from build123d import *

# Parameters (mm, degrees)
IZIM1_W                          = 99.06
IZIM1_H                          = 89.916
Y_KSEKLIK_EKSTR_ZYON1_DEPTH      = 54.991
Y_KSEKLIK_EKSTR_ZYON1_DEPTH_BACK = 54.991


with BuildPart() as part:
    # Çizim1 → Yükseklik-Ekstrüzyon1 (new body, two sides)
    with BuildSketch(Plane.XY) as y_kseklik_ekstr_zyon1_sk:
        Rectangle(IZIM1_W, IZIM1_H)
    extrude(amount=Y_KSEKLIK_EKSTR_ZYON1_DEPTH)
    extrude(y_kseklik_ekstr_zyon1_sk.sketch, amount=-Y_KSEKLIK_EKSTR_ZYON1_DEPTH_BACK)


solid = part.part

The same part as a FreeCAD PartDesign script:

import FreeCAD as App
import Part
import Sketcher
from FreeCAD import Vector
Q = App.Units.Quantity


def add_polygon(sketch, points):
    """Adds a closed chain of lines whose ends are joined by coincident constraints."""
    first, n = sketch.GeometryCount, len(points)
    for a, b in zip(points, points[1:] + points[:1]):
        sketch.addGeometry(Part.LineSegment(App.Vector(*a, 0), App.Vector(*b, 0)), False)
    for i in range(n):
        sketch.addConstraint(Sketcher.Constraint("Coincident", first + i, 2, first + (i + 1) % n, 1))

doc = App.newDocument("Part")
body = doc.addObject("PartDesign::Body", "Body")

sketch1 = doc.addObject("Sketcher::SketchObject", "Sketch")
body.addObject(sketch1)
sketch1.AttachmentSupport = (doc.XY_Plane, [""])
sketch1.MapMode = "FlatFace"
add_polygon(sketch1, [(-49.53, 44.958), (-49.53, -44.958), (49.53, -44.958), (49.53, 44.958)])
sketch1.addConstraint([
    Sketcher.Constraint("Vertical", 0),
    Sketcher.Constraint("Horizontal", 1),
    Sketcher.Constraint("Vertical", 2),
    Sketcher.Constraint("Horizontal", 3),
    Sketcher.Constraint("Symmetric", 0, 2, 2, 2, -1, 1),
    Sketcher.Constraint("DistanceX", 1, 1, 1, 2, Q("3.9 in")),
    Sketcher.Constraint("DistanceY", 0, 2, 0, 1, Q("3.54 in")),
])
pad1 = doc.addObject("PartDesign::Pad", "Pad")
body.addObject(pad1)
pad1.Profile = sketch1
pad1.Type = "TwoLengths"
pad1.Length = Q("2.165 in")
pad1.Length2 = Q("2.165 in")

doc.recompute()
